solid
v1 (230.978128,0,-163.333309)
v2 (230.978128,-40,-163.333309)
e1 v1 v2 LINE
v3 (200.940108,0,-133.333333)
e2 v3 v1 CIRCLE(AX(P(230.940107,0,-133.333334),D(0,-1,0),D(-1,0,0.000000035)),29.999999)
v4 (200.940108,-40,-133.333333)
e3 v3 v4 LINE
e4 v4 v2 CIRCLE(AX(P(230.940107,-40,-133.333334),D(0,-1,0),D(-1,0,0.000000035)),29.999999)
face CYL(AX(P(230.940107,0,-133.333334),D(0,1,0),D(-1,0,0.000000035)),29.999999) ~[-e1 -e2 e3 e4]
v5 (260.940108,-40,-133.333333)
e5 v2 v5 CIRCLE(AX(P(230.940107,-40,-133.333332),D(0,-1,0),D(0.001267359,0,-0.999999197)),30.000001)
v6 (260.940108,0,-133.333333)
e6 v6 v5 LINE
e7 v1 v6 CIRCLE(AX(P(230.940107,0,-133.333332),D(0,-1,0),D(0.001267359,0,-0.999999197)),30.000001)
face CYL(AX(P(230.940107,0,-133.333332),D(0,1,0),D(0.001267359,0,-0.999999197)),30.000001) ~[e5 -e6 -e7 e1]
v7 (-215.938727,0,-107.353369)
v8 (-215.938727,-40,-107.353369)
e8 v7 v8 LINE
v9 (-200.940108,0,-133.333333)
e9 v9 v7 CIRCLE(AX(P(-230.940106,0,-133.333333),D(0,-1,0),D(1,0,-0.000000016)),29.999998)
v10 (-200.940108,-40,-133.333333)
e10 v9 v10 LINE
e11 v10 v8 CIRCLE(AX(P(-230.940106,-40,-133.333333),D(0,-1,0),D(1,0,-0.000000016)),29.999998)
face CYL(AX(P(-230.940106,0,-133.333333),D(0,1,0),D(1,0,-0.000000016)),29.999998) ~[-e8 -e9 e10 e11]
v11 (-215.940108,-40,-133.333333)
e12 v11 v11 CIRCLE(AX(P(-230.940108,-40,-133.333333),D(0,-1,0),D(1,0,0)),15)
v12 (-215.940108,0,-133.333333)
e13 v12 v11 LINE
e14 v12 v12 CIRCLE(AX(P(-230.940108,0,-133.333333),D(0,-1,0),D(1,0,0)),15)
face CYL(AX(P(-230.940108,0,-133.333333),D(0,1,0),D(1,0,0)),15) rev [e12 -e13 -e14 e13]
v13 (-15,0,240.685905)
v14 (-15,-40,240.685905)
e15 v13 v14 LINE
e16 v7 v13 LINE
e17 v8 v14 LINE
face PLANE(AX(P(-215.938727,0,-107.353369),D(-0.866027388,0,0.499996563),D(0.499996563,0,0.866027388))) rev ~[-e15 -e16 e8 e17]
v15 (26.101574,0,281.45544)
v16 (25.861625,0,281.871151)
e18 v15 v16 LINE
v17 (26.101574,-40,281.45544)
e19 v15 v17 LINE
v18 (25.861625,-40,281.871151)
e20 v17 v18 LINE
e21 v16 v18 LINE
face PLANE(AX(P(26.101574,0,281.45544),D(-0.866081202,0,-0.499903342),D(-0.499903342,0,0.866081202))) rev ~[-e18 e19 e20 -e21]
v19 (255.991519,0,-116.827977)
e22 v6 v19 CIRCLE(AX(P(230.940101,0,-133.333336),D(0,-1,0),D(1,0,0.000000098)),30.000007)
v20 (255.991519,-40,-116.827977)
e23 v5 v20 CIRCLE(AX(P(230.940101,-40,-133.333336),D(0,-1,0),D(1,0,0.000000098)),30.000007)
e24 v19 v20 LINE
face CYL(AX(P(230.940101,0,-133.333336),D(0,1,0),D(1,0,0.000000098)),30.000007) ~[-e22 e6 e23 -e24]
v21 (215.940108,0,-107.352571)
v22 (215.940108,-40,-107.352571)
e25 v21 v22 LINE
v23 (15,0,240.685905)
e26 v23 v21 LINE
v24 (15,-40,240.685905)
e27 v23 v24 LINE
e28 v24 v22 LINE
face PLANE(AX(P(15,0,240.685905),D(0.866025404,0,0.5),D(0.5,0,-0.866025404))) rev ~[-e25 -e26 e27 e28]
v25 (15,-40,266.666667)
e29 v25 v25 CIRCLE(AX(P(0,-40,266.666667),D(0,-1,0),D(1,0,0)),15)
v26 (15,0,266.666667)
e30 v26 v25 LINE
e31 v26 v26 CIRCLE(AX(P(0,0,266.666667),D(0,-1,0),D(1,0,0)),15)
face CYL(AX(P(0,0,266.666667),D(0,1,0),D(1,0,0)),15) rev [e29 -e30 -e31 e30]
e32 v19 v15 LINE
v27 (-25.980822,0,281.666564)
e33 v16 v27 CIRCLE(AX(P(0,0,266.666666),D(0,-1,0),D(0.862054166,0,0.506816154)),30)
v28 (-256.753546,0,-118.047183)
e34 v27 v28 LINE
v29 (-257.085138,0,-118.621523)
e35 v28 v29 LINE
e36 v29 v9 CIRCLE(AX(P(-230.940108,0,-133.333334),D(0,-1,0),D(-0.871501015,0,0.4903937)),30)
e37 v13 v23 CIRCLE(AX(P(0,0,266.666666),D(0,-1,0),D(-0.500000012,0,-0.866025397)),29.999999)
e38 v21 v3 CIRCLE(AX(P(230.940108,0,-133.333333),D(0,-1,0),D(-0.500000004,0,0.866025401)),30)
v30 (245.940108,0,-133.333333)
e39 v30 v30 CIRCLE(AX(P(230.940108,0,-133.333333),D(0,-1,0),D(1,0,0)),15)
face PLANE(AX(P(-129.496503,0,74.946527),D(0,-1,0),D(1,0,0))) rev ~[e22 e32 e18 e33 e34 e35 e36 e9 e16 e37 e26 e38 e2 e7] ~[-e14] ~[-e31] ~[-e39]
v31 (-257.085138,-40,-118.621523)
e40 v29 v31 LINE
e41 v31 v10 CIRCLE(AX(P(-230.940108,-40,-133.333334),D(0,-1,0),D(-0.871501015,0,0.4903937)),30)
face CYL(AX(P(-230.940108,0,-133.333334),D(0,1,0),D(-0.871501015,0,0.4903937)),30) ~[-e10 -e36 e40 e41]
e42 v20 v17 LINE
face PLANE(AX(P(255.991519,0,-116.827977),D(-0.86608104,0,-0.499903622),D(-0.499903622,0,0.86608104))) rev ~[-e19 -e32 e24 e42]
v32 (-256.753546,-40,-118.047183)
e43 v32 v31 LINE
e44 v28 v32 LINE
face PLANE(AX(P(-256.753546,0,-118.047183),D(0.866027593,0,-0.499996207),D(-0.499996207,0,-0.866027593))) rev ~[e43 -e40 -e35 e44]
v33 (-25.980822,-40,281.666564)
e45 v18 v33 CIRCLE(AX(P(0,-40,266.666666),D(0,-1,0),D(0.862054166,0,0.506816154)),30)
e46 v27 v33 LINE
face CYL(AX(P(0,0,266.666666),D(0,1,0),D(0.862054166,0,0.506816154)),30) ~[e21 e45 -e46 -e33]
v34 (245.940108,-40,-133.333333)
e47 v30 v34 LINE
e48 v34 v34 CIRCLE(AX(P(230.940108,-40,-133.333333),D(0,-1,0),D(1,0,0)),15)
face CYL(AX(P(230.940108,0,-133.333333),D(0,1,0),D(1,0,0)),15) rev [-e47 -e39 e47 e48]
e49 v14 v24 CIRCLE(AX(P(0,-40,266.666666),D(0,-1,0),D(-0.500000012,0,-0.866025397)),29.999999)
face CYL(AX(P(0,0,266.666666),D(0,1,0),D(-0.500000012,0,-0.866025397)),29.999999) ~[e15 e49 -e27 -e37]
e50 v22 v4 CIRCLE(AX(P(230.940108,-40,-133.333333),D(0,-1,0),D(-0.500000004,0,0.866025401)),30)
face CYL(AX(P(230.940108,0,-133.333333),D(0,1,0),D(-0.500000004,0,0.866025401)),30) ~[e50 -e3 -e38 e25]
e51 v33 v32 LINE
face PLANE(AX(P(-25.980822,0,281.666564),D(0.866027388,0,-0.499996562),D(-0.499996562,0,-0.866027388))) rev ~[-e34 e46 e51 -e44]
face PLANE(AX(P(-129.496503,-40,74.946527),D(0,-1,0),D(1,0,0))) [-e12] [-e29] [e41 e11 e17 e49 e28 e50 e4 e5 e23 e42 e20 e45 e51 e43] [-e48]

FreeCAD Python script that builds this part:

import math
import FreeCAD as App
import Part
import Sketcher
from FreeCAD import Vector
Q = App.Units.Quantity

doc = App.newDocument("Part")
body = doc.addObject("PartDesign::Body", "Body")

# Sketch on XZ plane
sketch1 = body.newObject("Sketcher::SketchObject", "Sketch")
sketch1.AttachmentSupport = (doc.getObject("XZ_Plane"), [""])
sketch1.MapMode = "FlatFace"
sketch1.addGeometry([
    Part.LineSegment(Vector(-215.938727, -107.353369, 0), Vector(-15, 240.685905, 0)),  # 0
    Part.ArcOfCircle(Part.Circle(Vector(0, 266.666666, 0), Vector(0, 0, 1), 29.999999), math.radians(-120.000001), math.radians(-59.999999)),  # 1
    Part.LineSegment(Vector(15, 240.685905, 0), Vector(215.940108, -107.352571, 0)),  # 2
    Part.ArcOfCircle(Part.Circle(Vector(230.940108, -133.333333, 0), Vector(0, 0, 1), 30), math.radians(120), math.radians(179.999999)),  # 3
    Part.ArcOfCircle(Part.Circle(Vector(230.940107, -133.333334, 0), Vector(0, 0, 1), 29.999999), math.radians(179.999998), math.radians(270.072615)),  # 4
    Part.ArcOfCircle(Part.Circle(Vector(230.940107, -133.333332, 0), Vector(0, 0, 1), 30.000001), math.radians(-89.927386), math.radians(-0.000001)),  # 5
    Part.ArcOfCircle(Part.Circle(Vector(230.940101, -133.333336, 0), Vector(0, 0, 1), 30.000007), math.radians(0.000006), math.radians(33.37926)),  # 6
    Part.LineSegment(Vector(255.991519, -116.827977, 0), Vector(26.101574, 281.45544, 0)),  # 7
    Part.LineSegment(Vector(26.101574, 281.45544, 0), Vector(25.861625, 281.871151, 0)),  # 8
    Part.ArcOfCircle(Part.Circle(Vector(0, 266.666666, 0), Vector(0, 0, 1), 30), math.radians(30.451987), math.radians(150.000226)),  # 9
    Part.LineSegment(Vector(-25.980822, 281.666564, 0), Vector(-256.753546, -118.047183, 0)),  # 10
    Part.LineSegment(Vector(-256.753546, -118.047183, 0), Vector(-257.085138, -118.621523, 0)),  # 11
    Part.ArcOfCircle(Part.Circle(Vector(-230.940108, -133.333334, 0), Vector(0, 0, 1), 30), math.radians(150.633538), math.radians(360.000002)),  # 12
    Part.ArcOfCircle(Part.Circle(Vector(-230.940106, -133.333333, 0), Vector(0, 0, 1), 29.999998), math.radians(-0.000001), math.radians(59.996957)),  # 13
    Part.Circle(Vector(-230.940108, -133.333333, 0), Vector(0, 0, 1), 15),  # 14
    Part.Circle(Vector(230.940108, -133.333333, 0), Vector(0, 0, 1), 15),  # 15
    Part.Circle(Vector(0, 266.666667, 0), Vector(0, 0, 1), 15),  # 16
], False)
sketch1.addConstraint([
    Sketcher.Constraint("Coincident", 0, 2, 1, 1),
    Sketcher.Constraint("Coincident", 1, 2, 2, 1),
    Sketcher.Constraint("Coincident", 2, 2, 3, 1),
    Sketcher.Constraint("Tangent", 3, 2, 4, 1),
    Sketcher.Constraint("Tangent", 4, 2, 5, 1),
    Sketcher.Constraint("Tangent", 5, 2, 6, 1),
    Sketcher.Constraint("Coincident", 6, 2, 7, 1),
    Sketcher.Constraint("Coincident", 7, 2, 8, 1),
    Sketcher.Constraint("Coincident", 8, 2, 9, 1),
    Sketcher.Constraint("Tangent", 9, 2, 10, 1),
    Sketcher.Constraint("Coincident", 10, 2, 11, 1),
    Sketcher.Constraint("Coincident", 11, 2, 12, 1),
    Sketcher.Constraint("Tangent", 12, 2, 13, 1),
    Sketcher.Constraint("Coincident", 13, 2, 0, 1),
    Sketcher.Constraint("Coincident", 5, 3, 3, 3),
    Sketcher.Constraint("Coincident", 9, 3, 1, 3),
    Sketcher.Constraint("Coincident", 14, 3, 12, 3),
    Sketcher.Constraint("Coincident", 15, 3, 3, 3),
    Sketcher.Constraint("Coincident", 16, 3, 1, 3),
    Sketcher.Constraint("Equal", 1, 3),
    Sketcher.Constraint("Equal", 5, 9),
    Sketcher.Constraint("Equal", 9, 12),
    Sketcher.Constraint("Equal", 12, 13),
    Sketcher.Constraint("Equal", 14, 15),
    Sketcher.Constraint("Equal", 15, 16),
    Sketcher.Constraint("Symmetric", 3, 3, 12, 3, -2),
    Sketcher.Constraint("Symmetric", 0, 2, 1, 2, -2),
    Sketcher.Constraint("Parallel", 7, 8),
    Sketcher.Constraint("Parallel", 0, 10),
    Sketcher.Constraint("Parallel", 10, 11),
    Sketcher.Constraint("Horizontal", 15, 3, 3, 2),
    Sketcher.Constraint("Horizontal", 3, 2, 5, 2),
    Sketcher.Constraint("Horizontal", 5, 2, 12, 2),
    Sketcher.Constraint("Diameter", 14, Q("30 mm")),
    Sketcher.Constraint("Radius", 1, Q("29.999999 mm")),
    Sketcher.Constraint("Angle", 2, Q("-60 deg")),
    Sketcher.Constraint("DistanceX", 0, 2, -1, 1, Q("15 mm")),
    Sketcher.Constraint("DistanceY", 3, 3, 1, 3, Q("400 mm")),
    Sketcher.Constraint("DistanceX", 2, 2, 5, 3, Q("14.999999 mm")),
    Sketcher.Constraint("Radius", 6, Q("30.000007 mm")),
    Sketcher.Constraint("Distance", 8, Q("0.479991 mm")),
    Sketcher.Constraint("Distance", 10, Q("461.548621 mm")),
    Sketcher.Constraint("Distance", 11, Q("0.663189 mm")),
    Sketcher.Constraint("DistanceY", 2, 2, -1, 1, Q("107.352571 mm")),
    Sketcher.Constraint("DistanceX", -1, 1, 4, 2, Q("230.978128 mm")),
    Sketcher.Constraint("DistanceX", -1, 1, 6, 2, Q("255.991519 mm")),
    Sketcher.Constraint("DistanceY", -1, 1, 7, 2, Q("281.45544 mm")),
])
pad1 = body.newObject("PartDesign::Pad", "Pad")
pad1.Profile = sketch1
pad1.Length = 40

doc.recompute()
